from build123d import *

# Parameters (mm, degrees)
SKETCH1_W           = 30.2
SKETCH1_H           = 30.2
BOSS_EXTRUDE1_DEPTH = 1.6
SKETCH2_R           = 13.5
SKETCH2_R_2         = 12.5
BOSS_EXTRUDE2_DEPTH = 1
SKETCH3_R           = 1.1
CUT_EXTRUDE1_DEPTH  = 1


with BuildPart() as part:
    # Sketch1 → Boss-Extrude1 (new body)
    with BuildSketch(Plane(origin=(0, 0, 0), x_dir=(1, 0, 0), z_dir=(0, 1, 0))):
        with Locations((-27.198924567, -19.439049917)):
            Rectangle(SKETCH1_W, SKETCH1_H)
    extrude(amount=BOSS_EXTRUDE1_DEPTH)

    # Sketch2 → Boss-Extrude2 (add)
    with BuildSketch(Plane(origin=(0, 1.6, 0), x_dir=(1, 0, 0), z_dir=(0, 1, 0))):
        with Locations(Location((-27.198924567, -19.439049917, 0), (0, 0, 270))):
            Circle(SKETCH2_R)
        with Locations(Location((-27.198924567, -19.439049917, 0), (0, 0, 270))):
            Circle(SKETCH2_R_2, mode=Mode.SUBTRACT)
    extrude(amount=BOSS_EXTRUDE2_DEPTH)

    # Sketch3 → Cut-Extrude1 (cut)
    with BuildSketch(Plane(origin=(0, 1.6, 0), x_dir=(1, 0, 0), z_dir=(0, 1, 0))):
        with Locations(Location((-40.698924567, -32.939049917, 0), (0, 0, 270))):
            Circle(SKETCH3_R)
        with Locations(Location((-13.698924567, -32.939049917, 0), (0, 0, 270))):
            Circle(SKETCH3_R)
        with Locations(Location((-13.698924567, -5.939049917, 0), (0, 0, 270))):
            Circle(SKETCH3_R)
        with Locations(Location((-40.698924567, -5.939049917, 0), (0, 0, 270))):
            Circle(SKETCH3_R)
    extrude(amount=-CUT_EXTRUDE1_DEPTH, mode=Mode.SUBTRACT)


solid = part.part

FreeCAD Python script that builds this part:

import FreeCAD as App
import Part
import Sketcher
Q = App.Units.Quantity

doc = App.newDocument("Part")
body = doc.addObject("PartDesign::Body", "Body")

sketch1 = doc.addObject("Sketcher::SketchObject", "Sketch")
body.addObject(sketch1)
sketch1.AttachmentSupport = (doc.XZ_Plane, [""])
sketch1.MapMode = "FlatFace"
sketch1.addGeometry(Part.LineSegment(App.Vector(-42, 4, 0), App.Vector(-42, 35, 0)), False)
sketch1.addGeometry(Part.LineSegment(App.Vector(-42, 35, 0), App.Vector(-12, 35, 0)), False)
sketch1.addGeometry(Part.LineSegment(App.Vector(-12, 35, 0), App.Vector(-12, 4, 0)), False)
sketch1.addGeometry(Part.LineSegment(App.Vector(-12, 4, 0), App.Vector(-42, 4, 0)), False)
sketch1.addConstraint(Sketcher.Constraint("Coincident", 0, 2, 1, 1))
sketch1.addConstraint(Sketcher.Constraint("Coincident", 1, 2, 2, 1))
sketch1.addConstraint(Sketcher.Constraint("Coincident", 2, 2, 3, 1))
sketch1.addConstraint(Sketcher.Constraint("Coincident", 3, 2, 0, 1))
sketch1.addConstraint(Sketcher.Constraint("Vertical", 0))
sketch1.addConstraint(Sketcher.Constraint("Horizontal", 1))
sketch1.addConstraint(Sketcher.Constraint("Vertical", 2))
sketch1.addConstraint(Sketcher.Constraint("Horizontal", 3))
sketch1.addConstraint(Sketcher.Constraint("Equal", 3, 0))
sketch1.addConstraint(Sketcher.Constraint("DistanceX", 1, 1, 1, 2, Q("30.2 mm")))
sketch1.addConstraint(Sketcher.Constraint("DistanceY", -1, 1, 0, 2, Q("34.53905 mm")))
sketch1.addConstraint(Sketcher.Constraint("DistanceX", 0, 2, -1, 1, Q("42.298925 mm")))
pad1 = doc.addObject("PartDesign::Pad", "Pad")
body.addObject(pad1)
pad1.Profile = sketch1
pad1.Length = 1.6
pad1.Reversed = True

sketch2 = doc.addObject("Sketcher::SketchObject", "Sketch001")
body.addObject(sketch2)
sketch2.AttachmentSupport = (doc.XZ_Plane, [""])
sketch2.MapMode = "FlatFace"
sketch2.AttachmentOffset = App.Placement(App.Vector(0, 0, -1.6), App.Rotation())
sketch2.addGeometry(Part.Circle(App.Vector(-27, 19, 0), App.Vector(0, 0, 1), 14), False)
sketch2.addGeometry(Part.Circle(App.Vector(-27, 19, 0), App.Vector(0, 0, 1), 12), False)
sketch2.addConstraint(Sketcher.Constraint("Coincident", 1, 3, 0, 3))
sketch2.addConstraint(Sketcher.Constraint("Diameter", 0, Q("27 mm")))
sketch2.addConstraint(Sketcher.Constraint("Diameter", 1, Q("25 mm")))
sketch2.addConstraint(Sketcher.Constraint("DistanceY", -1, 1, 0, 3, Q("19.43905 mm")))
sketch2.addConstraint(Sketcher.Constraint("DistanceX", 0, 3, -1, 1, Q("27.198925 mm")))
pad2 = doc.addObject("PartDesign::Pad", "Pad001")
body.addObject(pad2)
pad2.Profile = sketch2
pad2.Length = 1
pad2.Reversed = True

sketch3 = doc.addObject("Sketcher::SketchObject", "Sketch002")
body.addObject(sketch3)
sketch3.AttachmentSupport = (doc.XZ_Plane, [""])
sketch3.MapMode = "FlatFace"
sketch3.AttachmentOffset = App.Placement(App.Vector(0, 0, -1.6), App.Rotation())
sketch3.addGeometry(Part.Circle(App.Vector(-40.7, 32.9, 0), App.Vector(0, 0, 1), 1.1), False)
sketch3.addGeometry(Part.Circle(App.Vector(-13.7, 32.9, 0), App.Vector(0, 0, 1), 1.1), False)
sketch3.addGeometry(Part.Circle(App.Vector(-13.7, 5.9, 0), App.Vector(0, 0, 1), 1.1), False)
sketch3.addGeometry(Part.Circle(App.Vector(-40.7, 5.9, 0), App.Vector(0, 0, 1), 1.1), False)
sketch3.addConstraint(Sketcher.Constraint("Equal", 0, 1))
sketch3.addConstraint(Sketcher.Constraint("Equal", 1, 2))
sketch3.addConstraint(Sketcher.Constraint("Equal", 2, 3))
sketch3.addConstraint(Sketcher.Constraint("Horizontal", 0, 3, 1, 3))
sketch3.addConstraint(Sketcher.Constraint("Horizontal", 2, 3, 3, 3))
sketch3.addConstraint(Sketcher.Constraint("Vertical", 1, 3, 2, 3))
sketch3.addConstraint(Sketcher.Constraint("Vertical", 0, 3, 3, 3))
sketch3.addConstraint(Sketcher.Constraint("Diameter", 0, Q("2.2 mm")))
sketch3.addConstraint(Sketcher.Constraint("DistanceX", 0, 3, 1, 3, Q("27 mm")))
sketch3.addConstraint(Sketcher.Constraint("DistanceY", 2, 3, 1, 3, Q("27 mm")))
sketch3.addConstraint(Sketcher.Constraint("DistanceY", -1, 1, 0, 3, Q("32.93905 mm")))
sketch3.addConstraint(Sketcher.Constraint("DistanceX", 0, 3, -1, 1, Q("40.698925 mm")))
pocket1 = doc.addObject("PartDesign::Pocket", "Pocket")
body.addObject(pocket1)
pocket1.Profile = sketch3
pocket1.Length = 1
pocket1.Reversed = True

doc.recompute()
